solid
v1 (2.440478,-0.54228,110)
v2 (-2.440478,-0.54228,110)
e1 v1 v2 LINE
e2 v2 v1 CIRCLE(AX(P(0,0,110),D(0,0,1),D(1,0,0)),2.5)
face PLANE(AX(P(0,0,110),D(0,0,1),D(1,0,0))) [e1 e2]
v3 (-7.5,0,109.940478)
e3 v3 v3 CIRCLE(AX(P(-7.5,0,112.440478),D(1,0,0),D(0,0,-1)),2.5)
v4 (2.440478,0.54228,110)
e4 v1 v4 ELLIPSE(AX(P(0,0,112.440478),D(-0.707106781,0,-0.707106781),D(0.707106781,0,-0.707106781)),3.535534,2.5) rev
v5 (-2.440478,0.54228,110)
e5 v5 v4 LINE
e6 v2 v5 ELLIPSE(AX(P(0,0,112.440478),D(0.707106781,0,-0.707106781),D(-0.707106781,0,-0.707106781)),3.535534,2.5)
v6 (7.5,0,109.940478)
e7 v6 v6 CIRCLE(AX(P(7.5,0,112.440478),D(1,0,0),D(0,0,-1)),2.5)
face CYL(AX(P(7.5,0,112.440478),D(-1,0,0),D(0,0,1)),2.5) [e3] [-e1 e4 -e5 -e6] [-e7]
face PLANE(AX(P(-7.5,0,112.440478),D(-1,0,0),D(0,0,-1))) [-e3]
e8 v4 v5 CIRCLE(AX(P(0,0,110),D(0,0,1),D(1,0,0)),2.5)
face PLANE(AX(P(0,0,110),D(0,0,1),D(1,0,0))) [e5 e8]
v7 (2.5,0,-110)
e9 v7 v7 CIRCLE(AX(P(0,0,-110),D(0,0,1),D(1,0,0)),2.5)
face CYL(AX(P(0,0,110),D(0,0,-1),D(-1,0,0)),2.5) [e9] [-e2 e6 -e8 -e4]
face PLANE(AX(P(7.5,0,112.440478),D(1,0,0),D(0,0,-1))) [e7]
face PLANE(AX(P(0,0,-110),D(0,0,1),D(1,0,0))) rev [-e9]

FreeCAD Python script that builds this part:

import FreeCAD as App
import Part
import Sketcher

V = App.Vector
Q = App.Units.Quantity

doc = App.newDocument("Part")
params = doc.addObject("Spreadsheet::Sheet", "Params")
for row, (alias, value) in enumerate([
    ("sketch1_diameter", "5 mm"),
    ("pad1_length", "220 mm"),
    ("sketch2_diameter", "5 mm"),
    ("pad2_length", "7.5 mm"),
], start=1):
    params.set(f"A{row}", alias)
    params.set(f"B{row}", "=" + value)
    params.setAlias(f"B{row}", alias)

body = doc.addObject("PartDesign::Body", "Body")

# Sketch on XY plane
sketch1 = doc.addObject("Sketcher::SketchObject", "Sketch")
body.addObject(sketch1)
sketch1.AttachmentSupport = (doc.XY_Plane, [""])
sketch1.MapMode = "FlatFace"
sketch1.addGeometry(Part.Circle(V(0, 0, 0), V(0, 0, 1), 2.5), False)
sketch1.addConstraint([
    Sketcher.Constraint("Coincident", 0, 3, -1, 1),
    Sketcher.Constraint("Diameter", 0, Q("5 mm")),
])
sketch1.setExpression("Constraints[1]", "Params.sketch1_diameter")
pad1 = doc.addObject("PartDesign::Pad", "Pad")
body.addObject(pad1)
pad1.Profile = sketch1
pad1.setExpression("Length", "Params.pad1_length")
pad1.Midplane = True

# Sketch on YZ plane
sketch2 = doc.addObject("Sketcher::SketchObject", "Sketch001")
body.addObject(sketch2)
sketch2.AttachmentSupport = (doc.YZ_Plane, [""])
sketch2.MapMode = "FlatFace"
sketch2.addGeometry(Part.Circle(V(0, 112.440478, 0), V(0, 0, 1), 2.5), False)
sketch2.addConstraint([
    Sketcher.Constraint("PointOnObject", 0, 3, -2),
    Sketcher.Constraint("Diameter", 0, Q("5 mm")),
    Sketcher.Constraint("DistanceY", -1, 1, 0, 3, Q("112.440478 mm")),
])
sketch2.setExpression("Constraints[1]", "Params.sketch2_diameter")
pad2 = doc.addObject("PartDesign::Pad", "Pad001")
body.addObject(pad2)
pad2.Profile = sketch2
pad2.setExpression("Length", "Params.pad2_length")
doc.recompute()

mirrored = doc.addObject("PartDesign::Mirrored", "Mirrored")
body.addObject(mirrored)
mirrored.Originals = [pad2]
mirrored.MirrorPlane = (doc.YZ_Plane, [""])
body.Tip = mirrored

doc.recompute()
